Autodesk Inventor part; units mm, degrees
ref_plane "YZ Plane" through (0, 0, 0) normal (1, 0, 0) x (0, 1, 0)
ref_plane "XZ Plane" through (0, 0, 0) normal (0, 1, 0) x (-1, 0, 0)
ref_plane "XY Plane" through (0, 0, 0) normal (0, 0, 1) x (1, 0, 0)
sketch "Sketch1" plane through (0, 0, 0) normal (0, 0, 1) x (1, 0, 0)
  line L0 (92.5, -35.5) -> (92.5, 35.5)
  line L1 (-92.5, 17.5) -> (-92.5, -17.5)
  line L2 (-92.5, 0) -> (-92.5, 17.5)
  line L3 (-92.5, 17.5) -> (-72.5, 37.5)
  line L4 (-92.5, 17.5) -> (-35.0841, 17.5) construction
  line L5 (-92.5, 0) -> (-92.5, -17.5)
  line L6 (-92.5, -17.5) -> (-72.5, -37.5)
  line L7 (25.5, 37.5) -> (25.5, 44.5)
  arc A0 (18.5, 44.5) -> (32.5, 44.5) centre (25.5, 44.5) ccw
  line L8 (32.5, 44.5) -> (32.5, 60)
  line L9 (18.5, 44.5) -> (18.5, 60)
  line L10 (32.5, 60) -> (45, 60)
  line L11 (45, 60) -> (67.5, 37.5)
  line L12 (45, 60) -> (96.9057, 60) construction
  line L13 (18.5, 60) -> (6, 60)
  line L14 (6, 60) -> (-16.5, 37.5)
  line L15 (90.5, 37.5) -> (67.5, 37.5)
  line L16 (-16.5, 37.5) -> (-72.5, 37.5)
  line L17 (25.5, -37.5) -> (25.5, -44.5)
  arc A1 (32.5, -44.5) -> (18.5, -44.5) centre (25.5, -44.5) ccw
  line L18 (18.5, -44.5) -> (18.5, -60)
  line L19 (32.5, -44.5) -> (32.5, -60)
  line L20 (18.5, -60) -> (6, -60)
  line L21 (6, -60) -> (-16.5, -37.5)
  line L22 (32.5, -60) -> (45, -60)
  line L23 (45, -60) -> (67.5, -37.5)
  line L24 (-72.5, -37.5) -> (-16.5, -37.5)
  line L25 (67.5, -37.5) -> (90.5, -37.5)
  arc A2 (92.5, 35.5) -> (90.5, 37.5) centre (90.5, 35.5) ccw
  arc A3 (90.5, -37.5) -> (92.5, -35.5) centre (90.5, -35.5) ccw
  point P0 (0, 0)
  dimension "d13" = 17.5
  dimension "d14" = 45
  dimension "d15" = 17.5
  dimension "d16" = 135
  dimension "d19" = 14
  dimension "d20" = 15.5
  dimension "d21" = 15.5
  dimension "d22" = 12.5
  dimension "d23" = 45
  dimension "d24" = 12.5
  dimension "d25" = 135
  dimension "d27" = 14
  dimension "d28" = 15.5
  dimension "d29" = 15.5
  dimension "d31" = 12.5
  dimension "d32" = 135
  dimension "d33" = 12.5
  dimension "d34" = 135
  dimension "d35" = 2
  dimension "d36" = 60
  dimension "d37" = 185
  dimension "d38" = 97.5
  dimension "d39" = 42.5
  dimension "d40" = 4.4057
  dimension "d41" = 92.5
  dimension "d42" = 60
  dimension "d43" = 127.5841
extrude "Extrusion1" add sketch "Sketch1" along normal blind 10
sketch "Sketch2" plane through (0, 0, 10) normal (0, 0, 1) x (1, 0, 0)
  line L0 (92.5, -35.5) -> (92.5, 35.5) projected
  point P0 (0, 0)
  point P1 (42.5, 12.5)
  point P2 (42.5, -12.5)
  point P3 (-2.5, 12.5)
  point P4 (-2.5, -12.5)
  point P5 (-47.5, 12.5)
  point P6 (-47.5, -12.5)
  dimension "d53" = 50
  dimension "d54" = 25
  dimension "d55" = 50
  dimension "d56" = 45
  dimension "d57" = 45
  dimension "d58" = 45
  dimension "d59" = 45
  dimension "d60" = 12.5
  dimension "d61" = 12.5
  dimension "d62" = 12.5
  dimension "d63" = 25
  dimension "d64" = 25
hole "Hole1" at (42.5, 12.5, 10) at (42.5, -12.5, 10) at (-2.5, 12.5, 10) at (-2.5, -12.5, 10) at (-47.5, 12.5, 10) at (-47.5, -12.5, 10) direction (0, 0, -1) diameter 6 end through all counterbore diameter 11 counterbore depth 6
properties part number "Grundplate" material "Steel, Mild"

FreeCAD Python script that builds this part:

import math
import FreeCAD as App
import Part
import Sketcher
Q = App.Units.Quantity

doc = App.newDocument("Part")
body = doc.addObject("PartDesign::Body", "Body")

sketch1 = body.newObject("Sketcher::SketchObject", "Sketch")
sketch1.AttachmentSupport = (doc.getObject("XY_Plane"), [""])
sketch1.MapMode = "FlatFace"
sketch1.addGeometry(Part.ArcOfCircle(Part.Circle(App.Vector(90.5, -35.5, 0), App.Vector(0, 0, 1), 2), math.radians(-90), math.radians(0)), False)
sketch1.addGeometry(Part.LineSegment(App.Vector(92.5, -35.5, 0), App.Vector(92.5, 35.5, 0)), False)
sketch1.addGeometry(Part.ArcOfCircle(Part.Circle(App.Vector(90.5, 35.5, 0), App.Vector(0, 0, 1), 2), math.radians(0), math.radians(90)), False)
sketch1.addGeometry(Part.LineSegment(App.Vector(90.5, 37.5, 0), App.Vector(67.5, 37.5, 0)), False)
sketch1.addGeometry(Part.LineSegment(App.Vector(67.5, 37.5, 0), App.Vector(45, 60, 0)), False)
sketch1.addGeometry(Part.LineSegment(App.Vector(45, 60, 0), App.Vector(32.5, 60, 0)), False)
sketch1.addGeometry(Part.LineSegment(App.Vector(32.5, 60, 0), App.Vector(32.5, 44.5, 0)), False)
sketch1.addGeometry(Part.ArcOfCircle(Part.Circle(App.Vector(25.5, 44.5, 0), App.Vector(0, 0, 1), 7), math.radians(180), math.radians(360)), False)
sketch1.addGeometry(Part.LineSegment(App.Vector(18.5, 44.5, 0), App.Vector(18.5, 60, 0)), False)
sketch1.addGeometry(Part.LineSegment(App.Vector(18.5, 60, 0), App.Vector(6, 60, 0)), False)
sketch1.addGeometry(Part.LineSegment(App.Vector(6, 60, 0), App.Vector(-16.5, 37.5, 0)), False)
sketch1.addGeometry(Part.LineSegment(App.Vector(-16.5, 37.5, 0), App.Vector(-72.5, 37.5, 0)), False)
sketch1.addGeometry(Part.LineSegment(App.Vector(-72.5, 37.5, 0), App.Vector(-92.5, 17.5, 0)), False)
sketch1.addGeometry(Part.LineSegment(App.Vector(-92.5, 17.5, 0), App.Vector(-92.5, -17.5, 0)), False)
sketch1.addGeometry(Part.LineSegment(App.Vector(-92.5, -17.5, 0), App.Vector(-72.5, -37.5, 0)), False)
sketch1.addGeometry(Part.LineSegment(App.Vector(-72.5, -37.5, 0), App.Vector(-16.5, -37.5, 0)), False)
sketch1.addGeometry(Part.LineSegment(App.Vector(-16.5, -37.5, 0), App.Vector(6, -60, 0)), False)
sketch1.addGeometry(Part.LineSegment(App.Vector(6, -60, 0), App.Vector(18.5, -60, 0)), False)
sketch1.addGeometry(Part.LineSegment(App.Vector(18.5, -60, 0), App.Vector(18.5, -44.5, 0)), False)
sketch1.addGeometry(Part.ArcOfCircle(Part.Circle(App.Vector(25.5, -44.5, 0), App.Vector(0, 0, 1), 7), math.radians(0), math.radians(180)), False)
sketch1.addGeometry(Part.LineSegment(App.Vector(32.5, -44.5, 0), App.Vector(32.5, -60, 0)), False)
sketch1.addGeometry(Part.LineSegment(App.Vector(32.5, -60, 0), App.Vector(45, -60, 0)), False)
sketch1.addGeometry(Part.LineSegment(App.Vector(45, -60, 0), App.Vector(67.5, -37.5, 0)), False)
sketch1.addGeometry(Part.LineSegment(App.Vector(67.5, -37.5, 0), App.Vector(90.5, -37.5, 0)), False)
sketch1.addConstraint(Sketcher.Constraint("Tangent", 0, 2, 1, 1))
sketch1.addConstraint(Sketcher.Constraint("Tangent", 1, 2, 2, 1))
sketch1.addConstraint(Sketcher.Constraint("Tangent", 2, 2, 3, 1))
sketch1.addConstraint(Sketcher.Constraint("Coincident", 3, 2, 4, 1))
sketch1.addConstraint(Sketcher.Constraint("Coincident", 4, 2, 5, 1))
sketch1.addConstraint(Sketcher.Constraint("Coincident", 5, 2, 6, 1))
sketch1.addConstraint(Sketcher.Constraint("Tangent", 6, 2, 7, 2))
sketch1.addConstraint(Sketcher.Constraint("Tangent", 7, 1, 8, 1))
sketch1.addConstraint(Sketcher.Constraint("Coincident", 8, 2, 9, 1))
sketch1.addConstraint(Sketcher.Constraint("Coincident", 9, 2, 10, 1))
sketch1.addConstraint(Sketcher.Constraint("Coincident", 10, 2, 11, 1))
sketch1.addConstraint(Sketcher.Constraint("Coincident", 11, 2, 12, 1))
sketch1.addConstraint(Sketcher.Constraint("Coincident", 12, 2, 13, 1))
sketch1.addConstraint(Sketcher.Constraint("Coincident", 13, 2, 14, 1))
sketch1.addConstraint(Sketcher.Constraint("Coincident", 14, 2, 15, 1))
sketch1.addConstraint(Sketcher.Constraint("Coincident", 15, 2, 16, 1))
sketch1.addConstraint(Sketcher.Constraint("Coincident", 16, 2, 17, 1))
sketch1.addConstraint(Sketcher.Constraint("Coincident", 17, 2, 18, 1))
sketch1.addConstraint(Sketcher.Constraint("Tangent", 18, 2, 19, 2))
sketch1.addConstraint(Sketcher.Constraint("Tangent", 19, 1, 20, 1))
sketch1.addConstraint(Sketcher.Constraint("Coincident", 20, 2, 21, 1))
sketch1.addConstraint(Sketcher.Constraint("Coincident", 21, 2, 22, 1))
sketch1.addConstraint(Sketcher.Constraint("Coincident", 22, 2, 23, 1))
sketch1.addConstraint(Sketcher.Constraint("Tangent", 23, 2, 0, 1))
sketch1.addConstraint(Sketcher.Constraint("Vertical", 1))
sketch1.addConstraint(Sketcher.Constraint("Horizontal", 3))
sketch1.addConstraint(Sketcher.Constraint("Horizontal", 5))
sketch1.addConstraint(Sketcher.Constraint("Vertical", 6))
sketch1.addConstraint(Sketcher.Constraint("Vertical", 8))
sketch1.addConstraint(Sketcher.Constraint("Horizontal", 9))
sketch1.addConstraint(Sketcher.Constraint("Horizontal", 11))
sketch1.addConstraint(Sketcher.Constraint("Vertical", 13))
sketch1.addConstraint(Sketcher.Constraint("Horizontal", 15))
sketch1.addConstraint(Sketcher.Constraint("Horizontal", 17))
sketch1.addConstraint(Sketcher.Constraint("Vertical", 18))
sketch1.addConstraint(Sketcher.Constraint("Vertical", 20))
sketch1.addConstraint(Sketcher.Constraint("Horizontal", 21))
sketch1.addConstraint(Sketcher.Constraint("Horizontal", 23))
sketch1.addConstraint(Sketcher.Constraint("Equal", 0, 2))
sketch1.addConstraint(Sketcher.Constraint("Equal", 7, 19))
sketch1.addConstraint(Sketcher.Constraint("Symmetric", 7, 3, 19, 3, -1))
sketch1.addConstraint(Sketcher.Constraint("Symmetric", 11, 2, 14, 2, -1))
sketch1.addConstraint(Sketcher.Constraint("Symmetric", 9, 2, 16, 2, -1))
sketch1.addConstraint(Sketcher.Constraint("Symmetric", 4, 2, 21, 2, -1))
sketch1.addConstraint(Sketcher.Constraint("Symmetric", 3, 2, 22, 2, -1))
sketch1.addConstraint(Sketcher.Constraint("Perpendicular", 4, 10))
sketch1.addConstraint(Sketcher.Constraint("Parallel", 10, 12))
sketch1.addConstraint(Sketcher.Constraint("Perpendicular", 12, 14))
sketch1.addConstraint(Sketcher.Constraint("Parallel", 14, 16))
sketch1.addConstraint(Sketcher.Constraint("Perpendicular", 16, 22))
sketch1.addConstraint(Sketcher.Constraint("Horizontal", 5, 2, 8, 2))
sketch1.addConstraint(Sketcher.Constraint("Horizontal", 3, 2, 10, 2))
sketch1.addConstraint(Sketcher.Constraint("Equal", 5, 9))
sketch1.addConstraint(Sketcher.Constraint("Radius", 0, Q("2 mm")))
sketch1.addConstraint(Sketcher.Constraint("Radius", 7, Q("7 mm")))
sketch1.addConstraint(Sketcher.Constraint("DistanceX", 5, 2, 5, 1, Q("12.5 mm")))
sketch1.addConstraint(Sketcher.Constraint("DistanceY", 6, 2, 6, 1, Q("15.5 mm")))
sketch1.addConstraint(Sketcher.Constraint("DistanceX", -1, 1, 4, 2, Q("45 mm")))
sketch1.addConstraint(Sketcher.Constraint("DistanceY", -1, 1, 4, 2, Q("60 mm")))
sketch1.addConstraint(Sketcher.Constraint("DistanceX", -1, 1, 0, 2, Q("92.5 mm")))
sketch1.addConstraint(Sketcher.Constraint("DistanceX", 12, 2, -1, 1, Q("92.5 mm")))
sketch1.addConstraint(Sketcher.Constraint("DistanceY", -1, 1, 12, 2, Q("17.5 mm")))
sketch1.addConstraint(Sketcher.Constraint("DistanceX", 3, 2, 3, 1, Q("23 mm")))
pad1 = body.newObject("PartDesign::Pad", "Pad")
pad1.Profile = sketch1
pad1.Length = 10

sketch2 = body.newObject("Sketcher::SketchObject", "Sketch001")
sketch2.AttachmentSupport = (doc.getObject("XY_Plane"), [""])
sketch2.MapMode = "FlatFace"
sketch2.AttachmentOffset = App.Placement(App.Vector(0, 0, 10), App.Rotation())
sketch2.addGeometry(Part.Circle(App.Vector(42.5, 12.5, 0), App.Vector(0, 0, 1), 3), False)
sketch2.addGeometry(Part.Circle(App.Vector(42.5, -12.5, 0), App.Vector(0, 0, 1), 3), False)
sketch2.addGeometry(Part.Circle(App.Vector(-2.5, 12.5, 0), App.Vector(0, 0, 1), 3), False)
sketch2.addGeometry(Part.Circle(App.Vector(-2.5, -12.5, 0), App.Vector(0, 0, 1), 3), False)
sketch2.addGeometry(Part.Circle(App.Vector(-47.5, 12.5, 0), App.Vector(0, 0, 1), 3), False)
sketch2.addGeometry(Part.Circle(App.Vector(-47.5, -12.5, 0), App.Vector(0, 0, 1), 3), False)
sketch2.addConstraint(Sketcher.Constraint("Equal", 0, 1))
sketch2.addConstraint(Sketcher.Constraint("Equal", 1, 2))
sketch2.addConstraint(Sketcher.Constraint("Equal", 2, 3))
sketch2.addConstraint(Sketcher.Constraint("Equal", 3, 4))
sketch2.addConstraint(Sketcher.Constraint("Equal", 4, 5))
sketch2.addConstraint(Sketcher.Constraint("Symmetric", 0, 3, 1, 3, -1))
sketch2.addConstraint(Sketcher.Constraint("Symmetric", 2, 3, 3, 3, -1))
sketch2.addConstraint(Sketcher.Constraint("Symmetric", 4, 3, 5, 3, -1))
sketch2.addConstraint(Sketcher.Constraint("Horizontal", 0, 3, 2, 3))
sketch2.addConstraint(Sketcher.Constraint("Horizontal", 2, 3, 4, 3))
sketch2.addConstraint(Sketcher.Constraint("Diameter", 0, Q("6 mm")))
sketch2.addConstraint(Sketcher.Constraint("DistanceY", 1, 3, 0, 3, Q("25 mm")))
sketch2.addConstraint(Sketcher.Constraint("DistanceX", 2, 3, 0, 3, Q("45 mm")))
sketch2.addConstraint(Sketcher.Constraint("DistanceX", 4, 3, 2, 3, Q("45 mm")))
sketch2.addConstraint(Sketcher.Constraint("DistanceX", -1, 1, 0, 3, Q("42.5 mm")))
doc.recompute()
hole = body.newObject("PartDesign::Hole", "Hole")
hole.Profile = sketch2
hole.ThreadType = "None"
hole.Diameter = 6
hole.DepthType = "ThroughAll"
hole.HoleCutType = "Counterbore"
hole.HoleCutDiameter = 11
hole.HoleCutDepth = 6

doc.recompute()
